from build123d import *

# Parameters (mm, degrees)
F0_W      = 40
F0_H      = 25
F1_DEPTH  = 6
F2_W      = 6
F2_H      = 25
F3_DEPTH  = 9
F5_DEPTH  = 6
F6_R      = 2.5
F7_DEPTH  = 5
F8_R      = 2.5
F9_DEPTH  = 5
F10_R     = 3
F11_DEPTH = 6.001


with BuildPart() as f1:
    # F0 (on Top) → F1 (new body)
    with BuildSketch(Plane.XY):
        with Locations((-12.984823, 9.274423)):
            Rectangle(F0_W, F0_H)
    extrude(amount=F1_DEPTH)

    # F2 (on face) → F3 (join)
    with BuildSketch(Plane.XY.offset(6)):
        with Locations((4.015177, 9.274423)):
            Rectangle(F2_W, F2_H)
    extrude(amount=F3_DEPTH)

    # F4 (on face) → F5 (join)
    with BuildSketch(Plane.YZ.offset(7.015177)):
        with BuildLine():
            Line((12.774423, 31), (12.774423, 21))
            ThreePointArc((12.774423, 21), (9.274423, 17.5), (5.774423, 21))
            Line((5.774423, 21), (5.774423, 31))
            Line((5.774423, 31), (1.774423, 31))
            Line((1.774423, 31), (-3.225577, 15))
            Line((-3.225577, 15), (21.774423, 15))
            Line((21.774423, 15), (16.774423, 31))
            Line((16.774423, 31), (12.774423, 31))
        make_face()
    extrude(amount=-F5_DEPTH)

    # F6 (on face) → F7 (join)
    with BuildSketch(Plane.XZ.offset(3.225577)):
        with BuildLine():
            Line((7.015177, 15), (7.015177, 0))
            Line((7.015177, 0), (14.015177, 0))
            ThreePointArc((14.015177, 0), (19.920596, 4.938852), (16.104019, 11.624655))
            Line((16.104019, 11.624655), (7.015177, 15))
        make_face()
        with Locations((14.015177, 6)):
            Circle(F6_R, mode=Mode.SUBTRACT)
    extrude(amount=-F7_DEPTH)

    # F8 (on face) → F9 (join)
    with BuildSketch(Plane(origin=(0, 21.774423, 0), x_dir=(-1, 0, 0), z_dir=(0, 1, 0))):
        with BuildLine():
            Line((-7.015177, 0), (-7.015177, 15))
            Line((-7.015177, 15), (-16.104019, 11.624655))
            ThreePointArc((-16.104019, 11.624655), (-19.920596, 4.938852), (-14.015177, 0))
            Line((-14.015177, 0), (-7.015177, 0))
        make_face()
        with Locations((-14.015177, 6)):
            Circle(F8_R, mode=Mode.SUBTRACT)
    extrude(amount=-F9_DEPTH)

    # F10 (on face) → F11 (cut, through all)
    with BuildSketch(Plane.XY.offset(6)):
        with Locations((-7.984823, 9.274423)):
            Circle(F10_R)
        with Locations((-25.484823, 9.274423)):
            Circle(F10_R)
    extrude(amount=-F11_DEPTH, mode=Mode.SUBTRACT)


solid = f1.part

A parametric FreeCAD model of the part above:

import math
import FreeCAD as App
import Part
import Sketcher

V = App.Vector


def add_polygon(sketch, points):
    """Adds a closed chain of lines whose ends are joined by coincident constraints."""
    first, n = sketch.GeometryCount, len(points)
    for a, b in zip(points, points[1:] + points[:1]):
        sketch.addGeometry(Part.LineSegment(App.Vector(*a, 0), App.Vector(*b, 0)), False)
    for i in range(n):
        sketch.addConstraint(Sketcher.Constraint("Coincident", first + i, 2, first + (i + 1) % n, 1))

doc = App.newDocument("Part")
params = doc.addObject("Spreadsheet::Sheet", "Params")
for row, (alias, value) in enumerate([
    ("sketch1_width", "40 mm"),
    ("sketch1_height", "25 mm"),
    ("pad1_length", "6 mm"),
    ("sketch2_width", "6 mm"),
    ("sketch2_height", "25 mm"),
    ("pad2_length", "9 mm"),
    ("sketch3_radius", "3.5 mm"),
    ("sketch3_width", "4 mm"),
    ("sketch3_width2", "25 mm"),
    ("sketch3_height", "10 mm"),
    ("pad3_length", "6 mm"),
    ("sketch4_diameter", "5 mm"),
    ("sketch4_radius", "6 mm"),
    ("sketch4_width", "7 mm"),
    ("sketch4_height", "15 mm"),
    ("pad4_length", "5 mm"),
    ("sketch5_diameter", "5 mm"),
    ("sketch5_radius", "6 mm"),
    ("sketch5_width", "7 mm"),
    ("sketch5_height", "15 mm"),
    ("pad5_length", "5 mm"),
    ("sketch6_diameter", "6 mm"),
], start=1):
    params.set(f"A{row}", alias)
    params.set(f"B{row}", "=" + value)
    params.setAlias(f"B{row}", alias)

body = doc.addObject("PartDesign::Body", "Body")

sketch1 = body.newObject("Sketcher::SketchObject", "Sketch")
sketch1.AttachmentSupport = (doc.getObject("XY_Plane"), [""])
sketch1.MapMode = "FlatFace"
add_polygon(sketch1, [(-33, 22), (-33, -3), (7, -3), (7, 22)])
sketch1.addConstraint([
    Sketcher.Constraint("Vertical", 0),
    Sketcher.Constraint("Horizontal", 1),
    Sketcher.Constraint("Vertical", 2),
    Sketcher.Constraint("Horizontal", 3),
    Sketcher.Constraint("DistanceX", 1, 1, 1, 2, 40.0),
    Sketcher.Constraint("DistanceY", 0, 2, 0, 1, 25.0),
    Sketcher.Constraint("DistanceX", 0, 2, -1, 1, 32.984823),
    Sketcher.Constraint("DistanceY", 0, 2, -1, 1, 3.225577),
])
sketch1.setExpression("Constraints[8]", "Params.sketch1_width")
sketch1.setExpression("Constraints[9]", "Params.sketch1_height")
pad1 = body.newObject("PartDesign::Pad", "Pad")
pad1.Profile = sketch1
pad1.setExpression("Length", "Params.pad1_length")

sketch2 = body.newObject("Sketcher::SketchObject", "Sketch001")
sketch2.AttachmentSupport = (doc.getObject("XY_Plane"), [""])
sketch2.MapMode = "FlatFace"
sketch2.AttachmentOffset = App.Placement(V(0, 0, 6), App.Rotation())
add_polygon(sketch2, [(1, 22), (1, -3), (7, -3), (7, 22)])
sketch2.addConstraint([
    Sketcher.Constraint("Vertical", 0),
    Sketcher.Constraint("Horizontal", 1),
    Sketcher.Constraint("Vertical", 2),
    Sketcher.Constraint("Horizontal", 3),
    Sketcher.Constraint("DistanceX", 1, 1, 1, 2, 6.0),
    Sketcher.Constraint("DistanceY", 0, 2, 0, 1, 25.0),
    Sketcher.Constraint("DistanceX", -1, 1, 0, 2, 1.015177),
    Sketcher.Constraint("DistanceY", 0, 2, -1, 1, 3.225577),
])
sketch2.setExpression("Constraints[8]", "Params.sketch2_width")
sketch2.setExpression("Constraints[9]", "Params.sketch2_height")
pad2 = body.newObject("PartDesign::Pad", "Pad001")
pad2.Profile = sketch2
pad2.setExpression("Length", "Params.pad2_length")

sketch3 = body.newObject("Sketcher::SketchObject", "Sketch002")
sketch3.AttachmentSupport = (doc.getObject("YZ_Plane"), [""])
sketch3.MapMode = "FlatFace"
sketch3.AttachmentOffset = App.Placement(V(0, 0, 7.015177), App.Rotation())
sketch3.addGeometry([
    Part.LineSegment(V(12.8, 31, 0), V(12.8, 21, 0)),
    Part.ArcOfCircle(Part.Circle(V(9.3, 21, 0), V(0, 0, 1), 3.5), math.radians(180), math.radians(360)),
    Part.LineSegment(V(5.8, 21, 0), V(5.8, 31, 0)),
    Part.LineSegment(V(5.8, 31, 0), V(1.8, 31, 0)),
    Part.LineSegment(V(1.8, 31, 0), V(-3.2, 15, 0)),
    Part.LineSegment(V(-3.2, 15, 0), V(21.8, 15, 0)),
    Part.LineSegment(V(21.8, 15, 0), V(16.8, 31, 0)),
    Part.LineSegment(V(16.8, 31, 0), V(12.8, 31, 0)),
], False)
sketch3.addConstraint([
    Sketcher.Constraint("Tangent", 0, 2, 1, 2),
    Sketcher.Constraint("Tangent", 1, 1, 2, 1),
    Sketcher.Constraint("Coincident", 2, 2, 3, 1),
    Sketcher.Constraint("Coincident", 3, 2, 4, 1),
    Sketcher.Constraint("Coincident", 4, 2, 5, 1),
    Sketcher.Constraint("Coincident", 5, 2, 6, 1),
    Sketcher.Constraint("Coincident", 6, 2, 7, 1),
    Sketcher.Constraint("Coincident", 7, 2, 0, 1),
    Sketcher.Constraint("Vertical", 0),
    Sketcher.Constraint("Vertical", 2),
    Sketcher.Constraint("Horizontal", 3),
    Sketcher.Constraint("Horizontal", 5),
    Sketcher.Constraint("Horizontal", 7),
    Sketcher.Constraint("Horizontal", 3, 2, 6, 2),
    Sketcher.Constraint("Equal", 3, 7),
    Sketcher.Constraint("Equal", 4, 6),
    Sketcher.Constraint("Radius", 1, 3.5),
    Sketcher.Constraint("DistanceX", 3, 2, 3, 1, 4.0),
    Sketcher.Constraint("DistanceX", 5, 1, 5, 2, 25.0),
    Sketcher.Constraint("DistanceY", 0, 2, 0, 1, 10.0),
    Sketcher.Constraint("DistanceY", -1, 1, 1, 3, 21.0),
    Sketcher.Constraint("DistanceY", -1, 1, 4, 2, 15.0),
    Sketcher.Constraint("DistanceX", -1, 1, 1, 3, 9.274423),
])
sketch3.setExpression("Constraints[16]", "Params.sketch3_radius")
sketch3.setExpression("Constraints[17]", "Params.sketch3_width")
sketch3.setExpression("Constraints[18]", "Params.sketch3_width2")
sketch3.setExpression("Constraints[19]", "Params.sketch3_height")
pad3 = body.newObject("PartDesign::Pad", "Pad002")
pad3.Profile = sketch3
pad3.setExpression("Length", "Params.pad3_length")
pad3.Reversed = True

sketch4 = body.newObject("Sketcher::SketchObject", "Sketch003")
sketch4.AttachmentSupport = (doc.getObject("XZ_Plane"), [""])
sketch4.MapMode = "FlatFace"
sketch4.AttachmentOffset = App.Placement(V(0, 0, 3.225577), App.Rotation())
sketch4.addGeometry([
    Part.LineSegment(V(7, 15, 0), V(7, 0, 0)),
    Part.LineSegment(V(7, 0, 0), V(14, 0, 0)),
    Part.ArcOfCircle(Part.Circle(V(14, 6, 0), V(0, 0, 1), 6), math.radians(-90), math.radians(70)),
    Part.LineSegment(V(16.1, 11.6, 0), V(7, 15, 0)),
    Part.Circle(V(14, 6, 0), V(0, 0, 1), 2.5),
], False)
sketch4.addConstraint([
    Sketcher.Constraint("Coincident", 0, 2, 1, 1),
    Sketcher.Constraint("Tangent", 1, 2, 2, 1),
    Sketcher.Constraint("Tangent", 2, 2, 3, 1),
    Sketcher.Constraint("Coincident", 3, 2, 0, 1),
    Sketcher.Constraint("Vertical", 0),
    Sketcher.Constraint("Horizontal", 1),
    Sketcher.Constraint("Coincident", 4, 3, 2, 3),
    Sketcher.Constraint("PointOnObject", 0, 2, -1),
    Sketcher.Constraint("Diameter", 4, 5.0),
    Sketcher.Constraint("Radius", 2, 6.0),
    Sketcher.Constraint("DistanceX", 1, 1, 1, 2, 7.0),
    Sketcher.Constraint("DistanceY", 0, 2, 0, 1, 15.0),
    Sketcher.Constraint("DistanceX", -1, 1, 2, 2, 16.104019),
])
sketch4.setExpression("Constraints[8]", "Params.sketch4_diameter")
sketch4.setExpression("Constraints[9]", "Params.sketch4_radius")
sketch4.setExpression("Constraints[10]", "Params.sketch4_width")
sketch4.setExpression("Constraints[11]", "Params.sketch4_height")
pad4 = body.newObject("PartDesign::Pad", "Pad003")
pad4.Profile = sketch4
pad4.setExpression("Length", "Params.pad4_length")
pad4.Reversed = True

sketch5 = body.newObject("Sketcher::SketchObject", "Sketch004")
sketch5.AttachmentSupport = (doc.getObject("XZ_Plane"), [""])
sketch5.MapMode = "FlatFace"
sketch5.AttachmentOffset = App.Placement(V(0, 0, -21.774423), App.Rotation())
sketch5.addGeometry([
    Part.LineSegment(V(7, 0, 0), V(7, 15, 0)),
    Part.LineSegment(V(7, 15, 0), V(16.1, 11.6, 0)),
    Part.ArcOfCircle(Part.Circle(V(14, 6, 0), V(0, 0, 1), 6), math.radians(-90), math.radians(70)),
    Part.LineSegment(V(14, 0, 0), V(7, 0, 0)),
    Part.Circle(V(14, 6, 0), V(0, 0, 1), 2.5),
], False)
sketch5.addConstraint([
    Sketcher.Constraint("Coincident", 0, 2, 1, 1),
    Sketcher.Constraint("Tangent", 1, 2, 2, 2),
    Sketcher.Constraint("Tangent", 2, 1, 3, 1),
    Sketcher.Constraint("Coincident", 3, 2, 0, 1),
    Sketcher.Constraint("Vertical", 0),
    Sketcher.Constraint("Horizontal", 3),
    Sketcher.Constraint("Coincident", 4, 3, 2, 3),
    Sketcher.Constraint("PointOnObject", 2, 1, -1),
    Sketcher.Constraint("Diameter", 4, 5.0),
    Sketcher.Constraint("Radius", 2, 6.0),
    Sketcher.Constraint("DistanceX", 3, 2, 3, 1, 7.0),
    Sketcher.Constraint("DistanceY", 0, 1, 0, 2, 15.0),
    Sketcher.Constraint("DistanceX", -1, 1, 1, 2, 16.104019),
])
sketch5.setExpression("Constraints[8]", "Params.sketch5_diameter")
sketch5.setExpression("Constraints[9]", "Params.sketch5_radius")
sketch5.setExpression("Constraints[10]", "Params.sketch5_width")
sketch5.setExpression("Constraints[11]", "Params.sketch5_height")
pad5 = body.newObject("PartDesign::Pad", "Pad004")
pad5.Profile = sketch5
pad5.setExpression("Length", "Params.pad5_length")

sketch6 = body.newObject("Sketcher::SketchObject", "Sketch005")
sketch6.AttachmentSupport = (doc.getObject("XY_Plane"), [""])
sketch6.MapMode = "FlatFace"
sketch6.AttachmentOffset = App.Placement(V(0, 0, 6), App.Rotation())
sketch6.addGeometry([
    Part.Circle(V(-8, 9.3, 0), V(0, 0, 1), 3),
    Part.Circle(V(-25.5, 9.3, 0), V(0, 0, 1), 3),
], False)
sketch6.addConstraint([
    Sketcher.Constraint("Equal", 0, 1),
    Sketcher.Constraint("Horizontal", 0, 3, 1, 3),
    Sketcher.Constraint("Diameter", 0, 6.0),
    Sketcher.Constraint("DistanceX", 1, 3, 0, 3, 17.5),
    Sketcher.Constraint("DistanceX", 0, 3, -1, 1, 7.984823),
    Sketcher.Constraint("DistanceY", -1, 1, 0, 3, 9.274423),
])
sketch6.setExpression("Constraints[2]", "Params.sketch6_diameter")
pocket1 = body.newObject("PartDesign::Pocket", "Pocket")
pocket1.Profile = sketch6
pocket1.Type = "ThroughAll"

doc.recompute()
